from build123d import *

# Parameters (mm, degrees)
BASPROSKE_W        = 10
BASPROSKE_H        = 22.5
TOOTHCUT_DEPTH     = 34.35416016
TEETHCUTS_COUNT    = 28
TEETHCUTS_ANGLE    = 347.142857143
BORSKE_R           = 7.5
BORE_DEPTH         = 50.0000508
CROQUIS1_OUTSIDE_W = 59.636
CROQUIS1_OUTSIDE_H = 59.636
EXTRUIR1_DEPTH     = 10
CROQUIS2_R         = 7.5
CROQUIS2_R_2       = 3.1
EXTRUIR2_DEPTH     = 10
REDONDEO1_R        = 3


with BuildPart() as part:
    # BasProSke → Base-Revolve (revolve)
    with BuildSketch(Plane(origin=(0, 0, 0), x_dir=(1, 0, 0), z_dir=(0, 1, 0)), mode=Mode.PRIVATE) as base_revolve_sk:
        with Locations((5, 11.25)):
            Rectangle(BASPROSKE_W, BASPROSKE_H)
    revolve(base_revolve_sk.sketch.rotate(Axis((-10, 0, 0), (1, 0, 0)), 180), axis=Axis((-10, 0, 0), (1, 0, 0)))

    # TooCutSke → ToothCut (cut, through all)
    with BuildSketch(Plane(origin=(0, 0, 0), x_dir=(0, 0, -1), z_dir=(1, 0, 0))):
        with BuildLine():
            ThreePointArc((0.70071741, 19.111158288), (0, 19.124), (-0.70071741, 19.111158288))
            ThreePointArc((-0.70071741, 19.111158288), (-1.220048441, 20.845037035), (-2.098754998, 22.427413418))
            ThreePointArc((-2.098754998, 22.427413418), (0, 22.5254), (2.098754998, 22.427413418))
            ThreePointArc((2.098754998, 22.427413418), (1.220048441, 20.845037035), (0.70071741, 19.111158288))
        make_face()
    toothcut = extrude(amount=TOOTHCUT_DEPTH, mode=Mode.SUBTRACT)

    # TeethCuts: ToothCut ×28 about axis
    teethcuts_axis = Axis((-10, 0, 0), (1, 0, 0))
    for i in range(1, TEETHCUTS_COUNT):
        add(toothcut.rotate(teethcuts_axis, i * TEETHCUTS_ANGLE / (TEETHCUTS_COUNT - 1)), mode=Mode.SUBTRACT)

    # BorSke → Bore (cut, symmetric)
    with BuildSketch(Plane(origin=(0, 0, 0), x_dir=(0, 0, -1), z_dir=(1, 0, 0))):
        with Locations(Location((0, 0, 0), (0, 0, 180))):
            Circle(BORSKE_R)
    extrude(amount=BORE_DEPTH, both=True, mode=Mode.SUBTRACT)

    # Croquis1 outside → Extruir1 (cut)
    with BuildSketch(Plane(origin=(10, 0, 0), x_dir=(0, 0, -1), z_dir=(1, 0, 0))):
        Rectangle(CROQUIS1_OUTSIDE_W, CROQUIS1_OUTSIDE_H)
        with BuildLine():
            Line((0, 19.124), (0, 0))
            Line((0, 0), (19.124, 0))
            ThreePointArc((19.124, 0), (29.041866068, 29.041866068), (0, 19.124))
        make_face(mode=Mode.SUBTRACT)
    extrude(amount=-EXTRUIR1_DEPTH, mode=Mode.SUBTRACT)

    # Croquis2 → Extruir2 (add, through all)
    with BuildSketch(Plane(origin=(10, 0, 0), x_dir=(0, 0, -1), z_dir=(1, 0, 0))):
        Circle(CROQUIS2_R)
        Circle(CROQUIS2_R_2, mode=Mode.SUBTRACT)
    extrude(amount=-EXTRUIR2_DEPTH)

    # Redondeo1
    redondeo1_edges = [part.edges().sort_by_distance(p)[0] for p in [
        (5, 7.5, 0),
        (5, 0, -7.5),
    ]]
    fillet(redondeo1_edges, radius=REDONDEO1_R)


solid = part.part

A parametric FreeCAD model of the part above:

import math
import FreeCAD as App
import Part
import Sketcher

V = App.Vector


def edges_at(feature, points):
    """Names of the edges that pass closest to the given points."""
    edges = feature.Shape.Edges
    near = lambda p: min(range(len(edges)), key=lambda i: edges[i].distToShape(Part.Vertex(*p))[0])
    return sorted({f"Edge{near(p) + 1}" for p in points})


def add_polygon(sketch, points):
    """Adds a closed chain of lines whose ends are joined by coincident constraints."""
    first, n = sketch.GeometryCount, len(points)
    for a, b in zip(points, points[1:] + points[:1]):
        sketch.addGeometry(Part.LineSegment(App.Vector(*a, 0), App.Vector(*b, 0)), False)
    for i in range(n):
        sketch.addConstraint(Sketcher.Constraint("Coincident", first + i, 2, first + (i + 1) % n, 1))

doc = App.newDocument("Part")
body = doc.addObject("PartDesign::Body", "Body")

# Sketch on XZ plane
sketch1 = body.newObject("Sketcher::SketchObject", "Sketch")
sketch1.AttachmentSupport = (doc.getObject("XZ_Plane"), [""])
sketch1.MapMode = "FlatFace"
add_polygon(sketch1, [(0, -22), (0, 0), (10, 0), (10, -22)])  # lines 0-3
sketch1.addConstraint(Sketcher.Constraint("Vertical", 0))
sketch1.addConstraint(Sketcher.Constraint("Horizontal", 1))
sketch1.addConstraint(Sketcher.Constraint("Vertical", 2))
sketch1.addConstraint(Sketcher.Constraint("Horizontal", 3))
sketch1.addConstraint(Sketcher.Constraint("Coincident", 0, 2, -1, 1))
sketch1.addConstraint(Sketcher.Constraint("DistanceX", 1, 1, 1, 2, 10.0))
sketch1.addConstraint(Sketcher.Constraint("DistanceY", 0, 1, 0, 2, 22.5))
revolution = body.newObject("PartDesign::Revolution", "Revolution")
revolution.Profile = sketch1
revolution.ReferenceAxis = (sketch1, ["H_Axis"])
revolution.Angle = 360

# Sketch on YZ plane
sketch2 = body.newObject("Sketcher::SketchObject", "Sketch001")
sketch2.AttachmentSupport = (doc.getObject("YZ_Plane"), [""])
sketch2.MapMode = "FlatFace"
sketch2.addGeometry(Part.ArcOfCircle(Part.Circle(V(0, 0, 0), V(0, 0, 1), 19.1), math.radians(-2.1), math.radians(2.1)), False)
sketch2.addGeometry(Part.ArcOfCircle(Part.Circle(V(17.6, -9, 0), V(0, 0, 1), 8.4), math.radians(55), math.radians(80)), False)
sketch2.addGeometry(Part.ArcOfCircle(Part.Circle(V(0, 0, 0), V(0, 0, 1), 22.5), math.radians(-5.35), math.radians(5.35)), False)
sketch2.addGeometry(Part.ArcOfCircle(Part.Circle(V(17.6, 9, 0), V(0, 0, 1), 8.4), math.radians(-80), math.radians(-55)), False)
sketch2.addConstraint(Sketcher.Constraint("Coincident", 0, 1, 1, 2))
sketch2.addConstraint(Sketcher.Constraint("Coincident", 1, 1, 2, 1))
sketch2.addConstraint(Sketcher.Constraint("Coincident", 2, 2, 3, 2))
sketch2.addConstraint(Sketcher.Constraint("Coincident", 3, 1, 0, 2))
sketch2.addConstraint(Sketcher.Constraint("Coincident", 0, 3, -1, 1))
sketch2.addConstraint(Sketcher.Constraint("Coincident", 2, 3, -1, 1))
sketch2.addConstraint(Sketcher.Constraint("Equal", 1, 3))
sketch2.addConstraint(Sketcher.Constraint("Symmetric", 1, 3, 3, 3, -1))
sketch2.addConstraint(Sketcher.Constraint("Radius", 1, 8.4))
sketch2.addConstraint(Sketcher.Constraint("Radius", 0, 19.124))
sketch2.addConstraint(Sketcher.Constraint("Radius", 2, 22.5254))
sketch2.addConstraint(Sketcher.Constraint("DistanceY", 1, 3, 3, 3, 17.920699))
sketch2.addConstraint(Sketcher.Constraint("DistanceX", -1, 1, 1, 3, 17.581949))
pocket1 = body.newObject("PartDesign::Pocket", "Pocket")
pocket1.Profile = sketch2
pocket1.Type = "ThroughAll"
pocket1.Reversed = True
doc.recompute()

polarpattern = body.newObject("PartDesign::PolarPattern", "PolarPattern")
polarpattern.Originals = [pocket1]
polarpattern.Axis = (doc.getObject("X_Axis"), [""])
polarpattern.Angle = 360
polarpattern.Occurrences = 28
body.Tip = polarpattern

# Sketch on YZ plane
sketch3 = body.newObject("Sketcher::SketchObject", "Sketch002")
sketch3.AttachmentSupport = (doc.getObject("YZ_Plane"), [""])
sketch3.MapMode = "FlatFace"
sketch3.addGeometry(Part.Circle(V(0, 0, 0), V(0, 0, 1), 8), False)
sketch3.addConstraint(Sketcher.Constraint("Coincident", 0, 3, -1, 1))
sketch3.addConstraint(Sketcher.Constraint("Diameter", 0, 15.0))
pocket2 = body.newObject("PartDesign::Pocket", "Pocket001")
pocket2.Profile = sketch3
pocket2.Length = 100.000102
pocket2.Midplane = True

# Sketch on YZ plane
sketch4 = body.newObject("Sketcher::SketchObject", "Sketch003")
sketch4.AttachmentSupport = (doc.getObject("YZ_Plane"), [""])
sketch4.MapMode = "FlatFace"
sketch4.AttachmentOffset = App.Placement(V(0, 0, 10), App.Rotation())
sketch4.addGeometry(Part.LineSegment(V(29.8, 29.8, 0), V(-29.8, 29.8, 0)), False)
sketch4.addGeometry(Part.LineSegment(V(-29.8, 29.8, 0), V(-29.8, -29.8, 0)), False)
sketch4.addGeometry(Part.LineSegment(V(-29.8, -29.8, 0), V(5.7, -29.8, 0)), False)
sketch4.addGeometry(Part.ArcOfCircle(Part.Circle(V(17, -17, 0), V(0, 0, 1), 17.1), math.radians(-173), math.radians(-131)), False)
sketch4.addGeometry(Part.LineSegment(V(0, -19.1, 0), V(0, 0, 0)), False)
sketch4.addGeometry(Part.LineSegment(V(0, 0, 0), V(19.1, 0, 0)), False)
sketch4.addGeometry(Part.ArcOfCircle(Part.Circle(V(17, -17, 0), V(0, 0, 1), 17.1), math.radians(41), math.radians(83)), False)
sketch4.addGeometry(Part.LineSegment(V(29.8, -5.7, 0), V(29.8, 29.8, 0)), False)
sketch4.addGeometry(Part.LineSegment(V(29.8, -29.8, 0), V(29.8, -28.2, 0)), False)
sketch4.addGeometry(Part.ArcOfCircle(Part.Circle(V(17, -17, 0), V(0, 0, 1), 17.1), math.radians(-48.81), math.radians(-41.19)), False)
sketch4.addGeometry(Part.LineSegment(V(28.2, -29.8, 0), V(29.8, -29.8, 0)), False)
sketch4.addConstraint(Sketcher.Constraint("Coincident", 0, 2, 1, 1))
sketch4.addConstraint(Sketcher.Constraint("Coincident", 1, 2, 2, 1))
sketch4.addConstraint(Sketcher.Constraint("Coincident", 2, 2, 3, 2))
sketch4.addConstraint(Sketcher.Constraint("Coincident", 3, 1, 4, 1))
sketch4.addConstraint(Sketcher.Constraint("Coincident", 4, 2, 5, 1))
sketch4.addConstraint(Sketcher.Constraint("Coincident", 5, 2, 6, 2))
sketch4.addConstraint(Sketcher.Constraint("Coincident", 6, 1, 7, 1))
sketch4.addConstraint(Sketcher.Constraint("Coincident", 7, 2, 0, 1))
sketch4.addConstraint(Sketcher.Constraint("Coincident", 8, 2, 9, 2))
sketch4.addConstraint(Sketcher.Constraint("Coincident", 9, 1, 10, 1))
sketch4.addConstraint(Sketcher.Constraint("Coincident", 10, 2, 8, 1))
sketch4.addConstraint(Sketcher.Constraint("Horizontal", 0))
sketch4.addConstraint(Sketcher.Constraint("Vertical", 1))
sketch4.addConstraint(Sketcher.Constraint("Horizontal", 2))
sketch4.addConstraint(Sketcher.Constraint("Vertical", 4))
sketch4.addConstraint(Sketcher.Constraint("Horizontal", 5))
sketch4.addConstraint(Sketcher.Constraint("Vertical", 7))
sketch4.addConstraint(Sketcher.Constraint("Vertical", 8))
sketch4.addConstraint(Sketcher.Constraint("Horizontal", 10))
sketch4.addConstraint(Sketcher.Constraint("Coincident", 4, 2, -1, 1))
sketch4.addConstraint(Sketcher.Constraint("Coincident", 6, 3, 3, 3))
sketch4.addConstraint(Sketcher.Constraint("Coincident", 9, 3, 3, 3))
sketch4.addConstraint(Sketcher.Constraint("Equal", 3, 6))
sketch4.addConstraint(Sketcher.Constraint("Equal", 6, 9))
sketch4.addConstraint(Sketcher.Constraint("Symmetric", 1, 2, 7, 2, -1, 1))
sketch4.addConstraint(Sketcher.Constraint("Symmetric", 0, 2, 10, 2, -1, 1))
sketch4.addConstraint(Sketcher.Constraint("Equal", 0, 1))
sketch4.addConstraint(Sketcher.Constraint("Equal", 5, 4))
sketch4.addConstraint(Sketcher.Constraint("DistanceX", 0, 2, 0, 1, 59.636))
sketch4.addConstraint(Sketcher.Constraint("DistanceX", 5, 1, 5, 2, 19.124))
sketch4.addConstraint(Sketcher.Constraint("Radius", 3, 17.093263))
pocket3 = body.newObject("PartDesign::Pocket", "Pocket002")
pocket3.Profile = sketch4
pocket3.Length = 10

# Sketch on YZ plane
sketch5 = body.newObject("Sketcher::SketchObject", "Sketch004")
sketch5.AttachmentSupport = (doc.getObject("YZ_Plane"), [""])
sketch5.MapMode = "FlatFace"
sketch5.AttachmentOffset = App.Placement(V(0, 0, 10), App.Rotation())
sketch5.addGeometry(Part.Circle(V(0, 0, 0), V(0, 0, 1), 7.5), False)
sketch5.addGeometry(Part.Circle(V(0, 0, 0), V(0, 0, 1), 3.1), False)
sketch5.addConstraint(Sketcher.Constraint("Coincident", 0, 3, -1, 1))
sketch5.addConstraint(Sketcher.Constraint("Coincident", 1, 3, -1, 1))
sketch5.addConstraint(Sketcher.Constraint("Diameter", 0, 15.0))
sketch5.addConstraint(Sketcher.Constraint("Diameter", 1, 6.2))
pad1 = body.newObject("PartDesign::Pad", "Pad")
pad1.Profile = sketch5
pad1.Length = 10
pad1.Reversed = True
doc.recompute()

fillet = body.newObject("PartDesign::Fillet", "Fillet")
fillet.Base = (pad1, edges_at(pad1, [(5, 7.5, 0), (5, 0, -7.5)]))
fillet.Radius = 3

doc.recompute()
